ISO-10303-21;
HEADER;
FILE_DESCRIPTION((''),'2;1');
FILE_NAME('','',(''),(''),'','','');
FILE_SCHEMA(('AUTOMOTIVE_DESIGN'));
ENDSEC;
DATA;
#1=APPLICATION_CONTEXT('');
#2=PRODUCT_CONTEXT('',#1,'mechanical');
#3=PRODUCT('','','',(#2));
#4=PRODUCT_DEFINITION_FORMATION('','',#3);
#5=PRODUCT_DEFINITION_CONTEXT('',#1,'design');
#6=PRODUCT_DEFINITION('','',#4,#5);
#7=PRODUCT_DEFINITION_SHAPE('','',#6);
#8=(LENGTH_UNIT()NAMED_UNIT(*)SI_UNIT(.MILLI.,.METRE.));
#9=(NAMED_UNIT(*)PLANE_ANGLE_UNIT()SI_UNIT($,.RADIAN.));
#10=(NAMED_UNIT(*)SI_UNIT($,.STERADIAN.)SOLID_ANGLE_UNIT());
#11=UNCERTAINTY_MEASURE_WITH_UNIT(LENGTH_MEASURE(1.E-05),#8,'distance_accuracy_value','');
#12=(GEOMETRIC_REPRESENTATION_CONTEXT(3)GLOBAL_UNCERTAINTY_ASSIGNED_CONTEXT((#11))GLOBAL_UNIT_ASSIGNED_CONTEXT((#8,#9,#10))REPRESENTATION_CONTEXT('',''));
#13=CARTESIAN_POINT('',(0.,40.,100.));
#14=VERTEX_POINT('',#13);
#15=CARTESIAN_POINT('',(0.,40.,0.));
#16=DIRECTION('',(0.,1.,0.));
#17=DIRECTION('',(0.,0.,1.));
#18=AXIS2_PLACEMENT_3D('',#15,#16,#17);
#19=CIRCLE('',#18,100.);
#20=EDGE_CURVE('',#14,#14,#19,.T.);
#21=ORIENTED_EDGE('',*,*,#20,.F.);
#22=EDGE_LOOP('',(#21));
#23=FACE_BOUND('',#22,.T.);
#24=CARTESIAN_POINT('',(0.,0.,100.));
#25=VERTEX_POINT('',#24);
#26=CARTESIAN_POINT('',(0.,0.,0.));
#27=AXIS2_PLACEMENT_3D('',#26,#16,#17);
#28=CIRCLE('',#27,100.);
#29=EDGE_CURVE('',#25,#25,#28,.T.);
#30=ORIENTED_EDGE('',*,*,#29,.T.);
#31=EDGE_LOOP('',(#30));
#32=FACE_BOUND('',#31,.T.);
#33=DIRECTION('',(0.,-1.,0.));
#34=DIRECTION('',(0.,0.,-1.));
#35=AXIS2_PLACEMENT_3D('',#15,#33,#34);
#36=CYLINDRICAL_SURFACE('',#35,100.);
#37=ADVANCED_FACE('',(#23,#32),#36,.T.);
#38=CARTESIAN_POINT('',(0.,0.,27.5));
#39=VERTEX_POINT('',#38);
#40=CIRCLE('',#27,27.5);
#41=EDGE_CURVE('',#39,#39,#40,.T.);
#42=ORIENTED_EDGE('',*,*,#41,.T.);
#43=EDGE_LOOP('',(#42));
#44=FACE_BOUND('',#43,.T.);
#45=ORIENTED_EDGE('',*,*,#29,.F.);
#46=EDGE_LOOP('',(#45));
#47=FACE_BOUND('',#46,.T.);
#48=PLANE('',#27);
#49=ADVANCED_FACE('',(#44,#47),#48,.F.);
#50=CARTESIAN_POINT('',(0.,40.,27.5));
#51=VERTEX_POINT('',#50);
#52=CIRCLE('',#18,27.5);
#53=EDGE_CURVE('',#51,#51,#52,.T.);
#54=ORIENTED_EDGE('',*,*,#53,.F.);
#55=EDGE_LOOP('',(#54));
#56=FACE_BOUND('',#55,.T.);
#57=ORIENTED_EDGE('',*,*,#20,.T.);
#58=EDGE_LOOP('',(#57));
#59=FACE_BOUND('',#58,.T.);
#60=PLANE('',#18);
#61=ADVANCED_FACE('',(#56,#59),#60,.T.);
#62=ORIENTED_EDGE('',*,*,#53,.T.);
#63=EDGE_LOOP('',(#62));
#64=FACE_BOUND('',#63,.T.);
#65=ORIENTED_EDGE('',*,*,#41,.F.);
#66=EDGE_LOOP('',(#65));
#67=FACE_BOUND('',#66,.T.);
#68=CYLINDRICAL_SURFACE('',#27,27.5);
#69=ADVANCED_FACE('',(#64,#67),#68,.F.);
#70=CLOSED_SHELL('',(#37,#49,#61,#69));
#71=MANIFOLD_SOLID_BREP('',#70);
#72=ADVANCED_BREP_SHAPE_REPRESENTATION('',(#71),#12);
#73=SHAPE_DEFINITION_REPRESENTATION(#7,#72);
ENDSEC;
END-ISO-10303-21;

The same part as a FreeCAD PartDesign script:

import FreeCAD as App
import Part
import Sketcher

doc = App.newDocument("Part")
body = doc.addObject("PartDesign::Body", "Body")

sketch1 = body.newObject("Sketcher::SketchObject", "Sketch")
sketch1.AttachmentSupport = (doc.getObject("XZ_Plane"), [""])
sketch1.MapMode = "FlatFace"
sketch1.addGeometry(Part.Circle(App.Vector(0, 0, 0), App.Vector(0, 0, 1), 100), False)
sketch1.addConstraint([
    Sketcher.Constraint("Coincident", 0, 3, -1, 1),
    Sketcher.Constraint("Diameter", 0, 200.0),
])
pad1 = body.newObject("PartDesign::Pad", "Pad")
pad1.Profile = sketch1
pad1.Length = 40
pad1.Reversed = True

sketch2 = body.newObject("Sketcher::SketchObject", "Sketch001")
sketch2.AttachmentSupport = (doc.getObject("XZ_Plane"), [""])
sketch2.MapMode = "FlatFace"
sketch2.AttachmentOffset = App.Placement(App.Vector(0, 0, -40), App.Rotation())
sketch2.addGeometry(Part.Circle(App.Vector(0, 0, 0), App.Vector(0, 0, 1), 27), False)
sketch2.addConstraint([
    Sketcher.Constraint("Coincident", 0, 3, -1, 1),
    Sketcher.Constraint("Diameter", 0, 55.0),
])
pocket1 = body.newObject("PartDesign::Pocket", "Pocket")
pocket1.Profile = sketch2
pocket1.Type = "ThroughAll"
pocket1.Reversed = True

doc.recompute()
